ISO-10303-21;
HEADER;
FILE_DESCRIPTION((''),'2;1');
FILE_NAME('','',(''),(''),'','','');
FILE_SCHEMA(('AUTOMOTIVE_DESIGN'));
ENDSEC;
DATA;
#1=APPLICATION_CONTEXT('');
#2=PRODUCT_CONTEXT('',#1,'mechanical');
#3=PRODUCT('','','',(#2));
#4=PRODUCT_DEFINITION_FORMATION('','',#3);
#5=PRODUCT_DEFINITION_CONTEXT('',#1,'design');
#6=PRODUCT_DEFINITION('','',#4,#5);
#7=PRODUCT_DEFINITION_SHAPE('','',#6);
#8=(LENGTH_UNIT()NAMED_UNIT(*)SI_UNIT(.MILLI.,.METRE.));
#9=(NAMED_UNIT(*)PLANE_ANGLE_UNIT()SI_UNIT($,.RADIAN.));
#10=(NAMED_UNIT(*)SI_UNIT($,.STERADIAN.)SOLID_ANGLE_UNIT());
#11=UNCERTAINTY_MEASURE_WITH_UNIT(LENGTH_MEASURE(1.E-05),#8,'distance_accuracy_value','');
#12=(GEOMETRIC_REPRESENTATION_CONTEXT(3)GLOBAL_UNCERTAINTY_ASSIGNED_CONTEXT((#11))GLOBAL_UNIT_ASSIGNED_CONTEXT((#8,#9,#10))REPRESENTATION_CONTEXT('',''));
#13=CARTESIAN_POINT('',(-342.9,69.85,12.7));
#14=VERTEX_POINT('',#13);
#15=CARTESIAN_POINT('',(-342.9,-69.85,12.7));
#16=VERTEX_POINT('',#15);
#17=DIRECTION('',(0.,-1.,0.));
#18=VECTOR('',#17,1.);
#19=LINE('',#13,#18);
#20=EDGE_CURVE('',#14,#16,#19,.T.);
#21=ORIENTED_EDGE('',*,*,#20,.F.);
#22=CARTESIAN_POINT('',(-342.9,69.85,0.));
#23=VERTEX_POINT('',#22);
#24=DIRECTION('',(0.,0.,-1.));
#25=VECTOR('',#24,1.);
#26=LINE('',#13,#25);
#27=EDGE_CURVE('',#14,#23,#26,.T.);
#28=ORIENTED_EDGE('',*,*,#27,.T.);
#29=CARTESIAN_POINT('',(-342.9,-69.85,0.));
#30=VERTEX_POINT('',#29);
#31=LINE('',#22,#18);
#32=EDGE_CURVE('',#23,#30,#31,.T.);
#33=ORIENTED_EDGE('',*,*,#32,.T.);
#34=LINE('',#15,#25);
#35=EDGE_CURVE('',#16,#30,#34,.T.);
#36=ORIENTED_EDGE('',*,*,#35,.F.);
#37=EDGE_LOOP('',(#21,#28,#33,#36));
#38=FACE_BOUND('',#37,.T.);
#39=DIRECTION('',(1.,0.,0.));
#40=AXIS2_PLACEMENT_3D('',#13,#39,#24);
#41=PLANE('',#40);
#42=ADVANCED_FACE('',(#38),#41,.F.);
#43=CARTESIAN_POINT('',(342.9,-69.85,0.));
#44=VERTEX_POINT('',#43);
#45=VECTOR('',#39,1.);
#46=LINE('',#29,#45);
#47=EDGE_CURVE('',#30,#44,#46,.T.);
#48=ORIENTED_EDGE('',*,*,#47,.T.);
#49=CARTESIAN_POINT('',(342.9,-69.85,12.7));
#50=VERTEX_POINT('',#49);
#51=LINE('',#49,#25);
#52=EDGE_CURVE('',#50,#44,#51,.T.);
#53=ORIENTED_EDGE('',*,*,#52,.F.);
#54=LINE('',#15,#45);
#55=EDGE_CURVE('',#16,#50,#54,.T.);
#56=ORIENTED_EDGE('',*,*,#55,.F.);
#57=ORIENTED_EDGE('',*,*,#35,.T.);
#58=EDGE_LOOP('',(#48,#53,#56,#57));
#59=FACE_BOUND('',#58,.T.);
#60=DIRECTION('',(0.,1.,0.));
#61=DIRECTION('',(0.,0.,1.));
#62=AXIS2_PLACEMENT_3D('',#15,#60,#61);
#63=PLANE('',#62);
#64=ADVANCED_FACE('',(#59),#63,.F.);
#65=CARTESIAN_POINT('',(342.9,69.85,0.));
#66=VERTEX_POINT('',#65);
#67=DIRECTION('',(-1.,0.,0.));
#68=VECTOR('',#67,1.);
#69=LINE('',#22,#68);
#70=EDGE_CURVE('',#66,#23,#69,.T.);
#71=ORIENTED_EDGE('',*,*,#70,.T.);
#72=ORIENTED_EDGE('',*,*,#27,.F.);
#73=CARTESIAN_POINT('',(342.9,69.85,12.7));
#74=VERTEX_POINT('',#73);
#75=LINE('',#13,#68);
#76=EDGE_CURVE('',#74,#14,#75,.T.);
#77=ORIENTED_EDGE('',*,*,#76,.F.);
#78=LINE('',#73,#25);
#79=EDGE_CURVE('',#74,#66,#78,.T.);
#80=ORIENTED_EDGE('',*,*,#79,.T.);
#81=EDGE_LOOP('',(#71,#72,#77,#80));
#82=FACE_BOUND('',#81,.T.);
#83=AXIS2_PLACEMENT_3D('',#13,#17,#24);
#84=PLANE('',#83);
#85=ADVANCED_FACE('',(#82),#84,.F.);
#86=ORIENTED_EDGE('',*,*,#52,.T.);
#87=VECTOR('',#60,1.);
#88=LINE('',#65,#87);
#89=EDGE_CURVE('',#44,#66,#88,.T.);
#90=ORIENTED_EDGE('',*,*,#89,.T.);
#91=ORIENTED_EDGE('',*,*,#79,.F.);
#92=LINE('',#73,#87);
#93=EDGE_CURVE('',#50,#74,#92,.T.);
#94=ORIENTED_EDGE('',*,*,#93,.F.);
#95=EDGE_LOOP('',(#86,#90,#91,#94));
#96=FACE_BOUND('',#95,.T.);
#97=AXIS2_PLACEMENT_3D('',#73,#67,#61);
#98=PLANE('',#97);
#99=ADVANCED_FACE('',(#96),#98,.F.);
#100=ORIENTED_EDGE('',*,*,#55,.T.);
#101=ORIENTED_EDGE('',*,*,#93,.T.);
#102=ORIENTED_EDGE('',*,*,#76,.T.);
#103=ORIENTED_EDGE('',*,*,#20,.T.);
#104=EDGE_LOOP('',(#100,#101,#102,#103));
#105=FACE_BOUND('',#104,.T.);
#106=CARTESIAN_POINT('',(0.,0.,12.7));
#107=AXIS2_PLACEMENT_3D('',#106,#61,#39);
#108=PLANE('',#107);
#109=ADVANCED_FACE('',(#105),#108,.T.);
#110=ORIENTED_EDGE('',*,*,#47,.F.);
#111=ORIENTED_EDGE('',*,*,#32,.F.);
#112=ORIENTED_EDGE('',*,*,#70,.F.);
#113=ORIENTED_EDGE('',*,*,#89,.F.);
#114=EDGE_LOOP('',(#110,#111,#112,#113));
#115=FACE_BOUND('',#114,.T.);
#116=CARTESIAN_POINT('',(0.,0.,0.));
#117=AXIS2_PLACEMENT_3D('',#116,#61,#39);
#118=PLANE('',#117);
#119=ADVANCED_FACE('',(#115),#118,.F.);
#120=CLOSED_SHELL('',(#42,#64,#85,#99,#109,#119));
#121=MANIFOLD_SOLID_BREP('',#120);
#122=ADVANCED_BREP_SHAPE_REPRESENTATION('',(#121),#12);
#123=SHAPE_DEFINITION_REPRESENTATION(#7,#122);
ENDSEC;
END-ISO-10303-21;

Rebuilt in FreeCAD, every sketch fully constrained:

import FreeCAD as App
import Part
import Sketcher

V = App.Vector
Q = App.Units.Quantity


def add_polygon(sketch, points):
    """Adds a closed chain of lines whose ends are joined by coincident constraints."""
    first, n = sketch.GeometryCount, len(points)
    for a, b in zip(points, points[1:] + points[:1]):
        sketch.addGeometry(Part.LineSegment(App.Vector(*a, 0), App.Vector(*b, 0)), False)
    for i in range(n):
        sketch.addConstraint(Sketcher.Constraint("Coincident", first + i, 2, first + (i + 1) % n, 1))

doc = App.newDocument("Part")
body = doc.addObject("PartDesign::Body", "Body")

sketch1 = doc.addObject("Sketcher::SketchObject", "Sketch")
body.addObject(sketch1)
sketch1.AttachmentSupport = (doc.XY_Plane, [""])
sketch1.MapMode = "FlatFace"
add_polygon(sketch1, [(-343, 70), (-343, -70), (343, -70), (343, 70)])
sketch1.addConstraint(Sketcher.Constraint("Vertical", 0))
sketch1.addConstraint(Sketcher.Constraint("Horizontal", 1))
sketch1.addConstraint(Sketcher.Constraint("Vertical", 2))
sketch1.addConstraint(Sketcher.Constraint("Horizontal", 3))
sketch1.addConstraint(Sketcher.Constraint("Symmetric", 0, 2, 2, 2, -1, 1))
sketch1.addConstraint(Sketcher.Constraint("DistanceX", 1, 1, 1, 2, Q("27 in")))
sketch1.addConstraint(Sketcher.Constraint("DistanceY", 0, 2, 0, 1, Q("5.5 in")))
pad1 = doc.addObject("PartDesign::Pad", "Pad")
body.addObject(pad1)
pad1.Profile = sketch1
pad1.Length = Q("0.5 in")

doc.recompute()
